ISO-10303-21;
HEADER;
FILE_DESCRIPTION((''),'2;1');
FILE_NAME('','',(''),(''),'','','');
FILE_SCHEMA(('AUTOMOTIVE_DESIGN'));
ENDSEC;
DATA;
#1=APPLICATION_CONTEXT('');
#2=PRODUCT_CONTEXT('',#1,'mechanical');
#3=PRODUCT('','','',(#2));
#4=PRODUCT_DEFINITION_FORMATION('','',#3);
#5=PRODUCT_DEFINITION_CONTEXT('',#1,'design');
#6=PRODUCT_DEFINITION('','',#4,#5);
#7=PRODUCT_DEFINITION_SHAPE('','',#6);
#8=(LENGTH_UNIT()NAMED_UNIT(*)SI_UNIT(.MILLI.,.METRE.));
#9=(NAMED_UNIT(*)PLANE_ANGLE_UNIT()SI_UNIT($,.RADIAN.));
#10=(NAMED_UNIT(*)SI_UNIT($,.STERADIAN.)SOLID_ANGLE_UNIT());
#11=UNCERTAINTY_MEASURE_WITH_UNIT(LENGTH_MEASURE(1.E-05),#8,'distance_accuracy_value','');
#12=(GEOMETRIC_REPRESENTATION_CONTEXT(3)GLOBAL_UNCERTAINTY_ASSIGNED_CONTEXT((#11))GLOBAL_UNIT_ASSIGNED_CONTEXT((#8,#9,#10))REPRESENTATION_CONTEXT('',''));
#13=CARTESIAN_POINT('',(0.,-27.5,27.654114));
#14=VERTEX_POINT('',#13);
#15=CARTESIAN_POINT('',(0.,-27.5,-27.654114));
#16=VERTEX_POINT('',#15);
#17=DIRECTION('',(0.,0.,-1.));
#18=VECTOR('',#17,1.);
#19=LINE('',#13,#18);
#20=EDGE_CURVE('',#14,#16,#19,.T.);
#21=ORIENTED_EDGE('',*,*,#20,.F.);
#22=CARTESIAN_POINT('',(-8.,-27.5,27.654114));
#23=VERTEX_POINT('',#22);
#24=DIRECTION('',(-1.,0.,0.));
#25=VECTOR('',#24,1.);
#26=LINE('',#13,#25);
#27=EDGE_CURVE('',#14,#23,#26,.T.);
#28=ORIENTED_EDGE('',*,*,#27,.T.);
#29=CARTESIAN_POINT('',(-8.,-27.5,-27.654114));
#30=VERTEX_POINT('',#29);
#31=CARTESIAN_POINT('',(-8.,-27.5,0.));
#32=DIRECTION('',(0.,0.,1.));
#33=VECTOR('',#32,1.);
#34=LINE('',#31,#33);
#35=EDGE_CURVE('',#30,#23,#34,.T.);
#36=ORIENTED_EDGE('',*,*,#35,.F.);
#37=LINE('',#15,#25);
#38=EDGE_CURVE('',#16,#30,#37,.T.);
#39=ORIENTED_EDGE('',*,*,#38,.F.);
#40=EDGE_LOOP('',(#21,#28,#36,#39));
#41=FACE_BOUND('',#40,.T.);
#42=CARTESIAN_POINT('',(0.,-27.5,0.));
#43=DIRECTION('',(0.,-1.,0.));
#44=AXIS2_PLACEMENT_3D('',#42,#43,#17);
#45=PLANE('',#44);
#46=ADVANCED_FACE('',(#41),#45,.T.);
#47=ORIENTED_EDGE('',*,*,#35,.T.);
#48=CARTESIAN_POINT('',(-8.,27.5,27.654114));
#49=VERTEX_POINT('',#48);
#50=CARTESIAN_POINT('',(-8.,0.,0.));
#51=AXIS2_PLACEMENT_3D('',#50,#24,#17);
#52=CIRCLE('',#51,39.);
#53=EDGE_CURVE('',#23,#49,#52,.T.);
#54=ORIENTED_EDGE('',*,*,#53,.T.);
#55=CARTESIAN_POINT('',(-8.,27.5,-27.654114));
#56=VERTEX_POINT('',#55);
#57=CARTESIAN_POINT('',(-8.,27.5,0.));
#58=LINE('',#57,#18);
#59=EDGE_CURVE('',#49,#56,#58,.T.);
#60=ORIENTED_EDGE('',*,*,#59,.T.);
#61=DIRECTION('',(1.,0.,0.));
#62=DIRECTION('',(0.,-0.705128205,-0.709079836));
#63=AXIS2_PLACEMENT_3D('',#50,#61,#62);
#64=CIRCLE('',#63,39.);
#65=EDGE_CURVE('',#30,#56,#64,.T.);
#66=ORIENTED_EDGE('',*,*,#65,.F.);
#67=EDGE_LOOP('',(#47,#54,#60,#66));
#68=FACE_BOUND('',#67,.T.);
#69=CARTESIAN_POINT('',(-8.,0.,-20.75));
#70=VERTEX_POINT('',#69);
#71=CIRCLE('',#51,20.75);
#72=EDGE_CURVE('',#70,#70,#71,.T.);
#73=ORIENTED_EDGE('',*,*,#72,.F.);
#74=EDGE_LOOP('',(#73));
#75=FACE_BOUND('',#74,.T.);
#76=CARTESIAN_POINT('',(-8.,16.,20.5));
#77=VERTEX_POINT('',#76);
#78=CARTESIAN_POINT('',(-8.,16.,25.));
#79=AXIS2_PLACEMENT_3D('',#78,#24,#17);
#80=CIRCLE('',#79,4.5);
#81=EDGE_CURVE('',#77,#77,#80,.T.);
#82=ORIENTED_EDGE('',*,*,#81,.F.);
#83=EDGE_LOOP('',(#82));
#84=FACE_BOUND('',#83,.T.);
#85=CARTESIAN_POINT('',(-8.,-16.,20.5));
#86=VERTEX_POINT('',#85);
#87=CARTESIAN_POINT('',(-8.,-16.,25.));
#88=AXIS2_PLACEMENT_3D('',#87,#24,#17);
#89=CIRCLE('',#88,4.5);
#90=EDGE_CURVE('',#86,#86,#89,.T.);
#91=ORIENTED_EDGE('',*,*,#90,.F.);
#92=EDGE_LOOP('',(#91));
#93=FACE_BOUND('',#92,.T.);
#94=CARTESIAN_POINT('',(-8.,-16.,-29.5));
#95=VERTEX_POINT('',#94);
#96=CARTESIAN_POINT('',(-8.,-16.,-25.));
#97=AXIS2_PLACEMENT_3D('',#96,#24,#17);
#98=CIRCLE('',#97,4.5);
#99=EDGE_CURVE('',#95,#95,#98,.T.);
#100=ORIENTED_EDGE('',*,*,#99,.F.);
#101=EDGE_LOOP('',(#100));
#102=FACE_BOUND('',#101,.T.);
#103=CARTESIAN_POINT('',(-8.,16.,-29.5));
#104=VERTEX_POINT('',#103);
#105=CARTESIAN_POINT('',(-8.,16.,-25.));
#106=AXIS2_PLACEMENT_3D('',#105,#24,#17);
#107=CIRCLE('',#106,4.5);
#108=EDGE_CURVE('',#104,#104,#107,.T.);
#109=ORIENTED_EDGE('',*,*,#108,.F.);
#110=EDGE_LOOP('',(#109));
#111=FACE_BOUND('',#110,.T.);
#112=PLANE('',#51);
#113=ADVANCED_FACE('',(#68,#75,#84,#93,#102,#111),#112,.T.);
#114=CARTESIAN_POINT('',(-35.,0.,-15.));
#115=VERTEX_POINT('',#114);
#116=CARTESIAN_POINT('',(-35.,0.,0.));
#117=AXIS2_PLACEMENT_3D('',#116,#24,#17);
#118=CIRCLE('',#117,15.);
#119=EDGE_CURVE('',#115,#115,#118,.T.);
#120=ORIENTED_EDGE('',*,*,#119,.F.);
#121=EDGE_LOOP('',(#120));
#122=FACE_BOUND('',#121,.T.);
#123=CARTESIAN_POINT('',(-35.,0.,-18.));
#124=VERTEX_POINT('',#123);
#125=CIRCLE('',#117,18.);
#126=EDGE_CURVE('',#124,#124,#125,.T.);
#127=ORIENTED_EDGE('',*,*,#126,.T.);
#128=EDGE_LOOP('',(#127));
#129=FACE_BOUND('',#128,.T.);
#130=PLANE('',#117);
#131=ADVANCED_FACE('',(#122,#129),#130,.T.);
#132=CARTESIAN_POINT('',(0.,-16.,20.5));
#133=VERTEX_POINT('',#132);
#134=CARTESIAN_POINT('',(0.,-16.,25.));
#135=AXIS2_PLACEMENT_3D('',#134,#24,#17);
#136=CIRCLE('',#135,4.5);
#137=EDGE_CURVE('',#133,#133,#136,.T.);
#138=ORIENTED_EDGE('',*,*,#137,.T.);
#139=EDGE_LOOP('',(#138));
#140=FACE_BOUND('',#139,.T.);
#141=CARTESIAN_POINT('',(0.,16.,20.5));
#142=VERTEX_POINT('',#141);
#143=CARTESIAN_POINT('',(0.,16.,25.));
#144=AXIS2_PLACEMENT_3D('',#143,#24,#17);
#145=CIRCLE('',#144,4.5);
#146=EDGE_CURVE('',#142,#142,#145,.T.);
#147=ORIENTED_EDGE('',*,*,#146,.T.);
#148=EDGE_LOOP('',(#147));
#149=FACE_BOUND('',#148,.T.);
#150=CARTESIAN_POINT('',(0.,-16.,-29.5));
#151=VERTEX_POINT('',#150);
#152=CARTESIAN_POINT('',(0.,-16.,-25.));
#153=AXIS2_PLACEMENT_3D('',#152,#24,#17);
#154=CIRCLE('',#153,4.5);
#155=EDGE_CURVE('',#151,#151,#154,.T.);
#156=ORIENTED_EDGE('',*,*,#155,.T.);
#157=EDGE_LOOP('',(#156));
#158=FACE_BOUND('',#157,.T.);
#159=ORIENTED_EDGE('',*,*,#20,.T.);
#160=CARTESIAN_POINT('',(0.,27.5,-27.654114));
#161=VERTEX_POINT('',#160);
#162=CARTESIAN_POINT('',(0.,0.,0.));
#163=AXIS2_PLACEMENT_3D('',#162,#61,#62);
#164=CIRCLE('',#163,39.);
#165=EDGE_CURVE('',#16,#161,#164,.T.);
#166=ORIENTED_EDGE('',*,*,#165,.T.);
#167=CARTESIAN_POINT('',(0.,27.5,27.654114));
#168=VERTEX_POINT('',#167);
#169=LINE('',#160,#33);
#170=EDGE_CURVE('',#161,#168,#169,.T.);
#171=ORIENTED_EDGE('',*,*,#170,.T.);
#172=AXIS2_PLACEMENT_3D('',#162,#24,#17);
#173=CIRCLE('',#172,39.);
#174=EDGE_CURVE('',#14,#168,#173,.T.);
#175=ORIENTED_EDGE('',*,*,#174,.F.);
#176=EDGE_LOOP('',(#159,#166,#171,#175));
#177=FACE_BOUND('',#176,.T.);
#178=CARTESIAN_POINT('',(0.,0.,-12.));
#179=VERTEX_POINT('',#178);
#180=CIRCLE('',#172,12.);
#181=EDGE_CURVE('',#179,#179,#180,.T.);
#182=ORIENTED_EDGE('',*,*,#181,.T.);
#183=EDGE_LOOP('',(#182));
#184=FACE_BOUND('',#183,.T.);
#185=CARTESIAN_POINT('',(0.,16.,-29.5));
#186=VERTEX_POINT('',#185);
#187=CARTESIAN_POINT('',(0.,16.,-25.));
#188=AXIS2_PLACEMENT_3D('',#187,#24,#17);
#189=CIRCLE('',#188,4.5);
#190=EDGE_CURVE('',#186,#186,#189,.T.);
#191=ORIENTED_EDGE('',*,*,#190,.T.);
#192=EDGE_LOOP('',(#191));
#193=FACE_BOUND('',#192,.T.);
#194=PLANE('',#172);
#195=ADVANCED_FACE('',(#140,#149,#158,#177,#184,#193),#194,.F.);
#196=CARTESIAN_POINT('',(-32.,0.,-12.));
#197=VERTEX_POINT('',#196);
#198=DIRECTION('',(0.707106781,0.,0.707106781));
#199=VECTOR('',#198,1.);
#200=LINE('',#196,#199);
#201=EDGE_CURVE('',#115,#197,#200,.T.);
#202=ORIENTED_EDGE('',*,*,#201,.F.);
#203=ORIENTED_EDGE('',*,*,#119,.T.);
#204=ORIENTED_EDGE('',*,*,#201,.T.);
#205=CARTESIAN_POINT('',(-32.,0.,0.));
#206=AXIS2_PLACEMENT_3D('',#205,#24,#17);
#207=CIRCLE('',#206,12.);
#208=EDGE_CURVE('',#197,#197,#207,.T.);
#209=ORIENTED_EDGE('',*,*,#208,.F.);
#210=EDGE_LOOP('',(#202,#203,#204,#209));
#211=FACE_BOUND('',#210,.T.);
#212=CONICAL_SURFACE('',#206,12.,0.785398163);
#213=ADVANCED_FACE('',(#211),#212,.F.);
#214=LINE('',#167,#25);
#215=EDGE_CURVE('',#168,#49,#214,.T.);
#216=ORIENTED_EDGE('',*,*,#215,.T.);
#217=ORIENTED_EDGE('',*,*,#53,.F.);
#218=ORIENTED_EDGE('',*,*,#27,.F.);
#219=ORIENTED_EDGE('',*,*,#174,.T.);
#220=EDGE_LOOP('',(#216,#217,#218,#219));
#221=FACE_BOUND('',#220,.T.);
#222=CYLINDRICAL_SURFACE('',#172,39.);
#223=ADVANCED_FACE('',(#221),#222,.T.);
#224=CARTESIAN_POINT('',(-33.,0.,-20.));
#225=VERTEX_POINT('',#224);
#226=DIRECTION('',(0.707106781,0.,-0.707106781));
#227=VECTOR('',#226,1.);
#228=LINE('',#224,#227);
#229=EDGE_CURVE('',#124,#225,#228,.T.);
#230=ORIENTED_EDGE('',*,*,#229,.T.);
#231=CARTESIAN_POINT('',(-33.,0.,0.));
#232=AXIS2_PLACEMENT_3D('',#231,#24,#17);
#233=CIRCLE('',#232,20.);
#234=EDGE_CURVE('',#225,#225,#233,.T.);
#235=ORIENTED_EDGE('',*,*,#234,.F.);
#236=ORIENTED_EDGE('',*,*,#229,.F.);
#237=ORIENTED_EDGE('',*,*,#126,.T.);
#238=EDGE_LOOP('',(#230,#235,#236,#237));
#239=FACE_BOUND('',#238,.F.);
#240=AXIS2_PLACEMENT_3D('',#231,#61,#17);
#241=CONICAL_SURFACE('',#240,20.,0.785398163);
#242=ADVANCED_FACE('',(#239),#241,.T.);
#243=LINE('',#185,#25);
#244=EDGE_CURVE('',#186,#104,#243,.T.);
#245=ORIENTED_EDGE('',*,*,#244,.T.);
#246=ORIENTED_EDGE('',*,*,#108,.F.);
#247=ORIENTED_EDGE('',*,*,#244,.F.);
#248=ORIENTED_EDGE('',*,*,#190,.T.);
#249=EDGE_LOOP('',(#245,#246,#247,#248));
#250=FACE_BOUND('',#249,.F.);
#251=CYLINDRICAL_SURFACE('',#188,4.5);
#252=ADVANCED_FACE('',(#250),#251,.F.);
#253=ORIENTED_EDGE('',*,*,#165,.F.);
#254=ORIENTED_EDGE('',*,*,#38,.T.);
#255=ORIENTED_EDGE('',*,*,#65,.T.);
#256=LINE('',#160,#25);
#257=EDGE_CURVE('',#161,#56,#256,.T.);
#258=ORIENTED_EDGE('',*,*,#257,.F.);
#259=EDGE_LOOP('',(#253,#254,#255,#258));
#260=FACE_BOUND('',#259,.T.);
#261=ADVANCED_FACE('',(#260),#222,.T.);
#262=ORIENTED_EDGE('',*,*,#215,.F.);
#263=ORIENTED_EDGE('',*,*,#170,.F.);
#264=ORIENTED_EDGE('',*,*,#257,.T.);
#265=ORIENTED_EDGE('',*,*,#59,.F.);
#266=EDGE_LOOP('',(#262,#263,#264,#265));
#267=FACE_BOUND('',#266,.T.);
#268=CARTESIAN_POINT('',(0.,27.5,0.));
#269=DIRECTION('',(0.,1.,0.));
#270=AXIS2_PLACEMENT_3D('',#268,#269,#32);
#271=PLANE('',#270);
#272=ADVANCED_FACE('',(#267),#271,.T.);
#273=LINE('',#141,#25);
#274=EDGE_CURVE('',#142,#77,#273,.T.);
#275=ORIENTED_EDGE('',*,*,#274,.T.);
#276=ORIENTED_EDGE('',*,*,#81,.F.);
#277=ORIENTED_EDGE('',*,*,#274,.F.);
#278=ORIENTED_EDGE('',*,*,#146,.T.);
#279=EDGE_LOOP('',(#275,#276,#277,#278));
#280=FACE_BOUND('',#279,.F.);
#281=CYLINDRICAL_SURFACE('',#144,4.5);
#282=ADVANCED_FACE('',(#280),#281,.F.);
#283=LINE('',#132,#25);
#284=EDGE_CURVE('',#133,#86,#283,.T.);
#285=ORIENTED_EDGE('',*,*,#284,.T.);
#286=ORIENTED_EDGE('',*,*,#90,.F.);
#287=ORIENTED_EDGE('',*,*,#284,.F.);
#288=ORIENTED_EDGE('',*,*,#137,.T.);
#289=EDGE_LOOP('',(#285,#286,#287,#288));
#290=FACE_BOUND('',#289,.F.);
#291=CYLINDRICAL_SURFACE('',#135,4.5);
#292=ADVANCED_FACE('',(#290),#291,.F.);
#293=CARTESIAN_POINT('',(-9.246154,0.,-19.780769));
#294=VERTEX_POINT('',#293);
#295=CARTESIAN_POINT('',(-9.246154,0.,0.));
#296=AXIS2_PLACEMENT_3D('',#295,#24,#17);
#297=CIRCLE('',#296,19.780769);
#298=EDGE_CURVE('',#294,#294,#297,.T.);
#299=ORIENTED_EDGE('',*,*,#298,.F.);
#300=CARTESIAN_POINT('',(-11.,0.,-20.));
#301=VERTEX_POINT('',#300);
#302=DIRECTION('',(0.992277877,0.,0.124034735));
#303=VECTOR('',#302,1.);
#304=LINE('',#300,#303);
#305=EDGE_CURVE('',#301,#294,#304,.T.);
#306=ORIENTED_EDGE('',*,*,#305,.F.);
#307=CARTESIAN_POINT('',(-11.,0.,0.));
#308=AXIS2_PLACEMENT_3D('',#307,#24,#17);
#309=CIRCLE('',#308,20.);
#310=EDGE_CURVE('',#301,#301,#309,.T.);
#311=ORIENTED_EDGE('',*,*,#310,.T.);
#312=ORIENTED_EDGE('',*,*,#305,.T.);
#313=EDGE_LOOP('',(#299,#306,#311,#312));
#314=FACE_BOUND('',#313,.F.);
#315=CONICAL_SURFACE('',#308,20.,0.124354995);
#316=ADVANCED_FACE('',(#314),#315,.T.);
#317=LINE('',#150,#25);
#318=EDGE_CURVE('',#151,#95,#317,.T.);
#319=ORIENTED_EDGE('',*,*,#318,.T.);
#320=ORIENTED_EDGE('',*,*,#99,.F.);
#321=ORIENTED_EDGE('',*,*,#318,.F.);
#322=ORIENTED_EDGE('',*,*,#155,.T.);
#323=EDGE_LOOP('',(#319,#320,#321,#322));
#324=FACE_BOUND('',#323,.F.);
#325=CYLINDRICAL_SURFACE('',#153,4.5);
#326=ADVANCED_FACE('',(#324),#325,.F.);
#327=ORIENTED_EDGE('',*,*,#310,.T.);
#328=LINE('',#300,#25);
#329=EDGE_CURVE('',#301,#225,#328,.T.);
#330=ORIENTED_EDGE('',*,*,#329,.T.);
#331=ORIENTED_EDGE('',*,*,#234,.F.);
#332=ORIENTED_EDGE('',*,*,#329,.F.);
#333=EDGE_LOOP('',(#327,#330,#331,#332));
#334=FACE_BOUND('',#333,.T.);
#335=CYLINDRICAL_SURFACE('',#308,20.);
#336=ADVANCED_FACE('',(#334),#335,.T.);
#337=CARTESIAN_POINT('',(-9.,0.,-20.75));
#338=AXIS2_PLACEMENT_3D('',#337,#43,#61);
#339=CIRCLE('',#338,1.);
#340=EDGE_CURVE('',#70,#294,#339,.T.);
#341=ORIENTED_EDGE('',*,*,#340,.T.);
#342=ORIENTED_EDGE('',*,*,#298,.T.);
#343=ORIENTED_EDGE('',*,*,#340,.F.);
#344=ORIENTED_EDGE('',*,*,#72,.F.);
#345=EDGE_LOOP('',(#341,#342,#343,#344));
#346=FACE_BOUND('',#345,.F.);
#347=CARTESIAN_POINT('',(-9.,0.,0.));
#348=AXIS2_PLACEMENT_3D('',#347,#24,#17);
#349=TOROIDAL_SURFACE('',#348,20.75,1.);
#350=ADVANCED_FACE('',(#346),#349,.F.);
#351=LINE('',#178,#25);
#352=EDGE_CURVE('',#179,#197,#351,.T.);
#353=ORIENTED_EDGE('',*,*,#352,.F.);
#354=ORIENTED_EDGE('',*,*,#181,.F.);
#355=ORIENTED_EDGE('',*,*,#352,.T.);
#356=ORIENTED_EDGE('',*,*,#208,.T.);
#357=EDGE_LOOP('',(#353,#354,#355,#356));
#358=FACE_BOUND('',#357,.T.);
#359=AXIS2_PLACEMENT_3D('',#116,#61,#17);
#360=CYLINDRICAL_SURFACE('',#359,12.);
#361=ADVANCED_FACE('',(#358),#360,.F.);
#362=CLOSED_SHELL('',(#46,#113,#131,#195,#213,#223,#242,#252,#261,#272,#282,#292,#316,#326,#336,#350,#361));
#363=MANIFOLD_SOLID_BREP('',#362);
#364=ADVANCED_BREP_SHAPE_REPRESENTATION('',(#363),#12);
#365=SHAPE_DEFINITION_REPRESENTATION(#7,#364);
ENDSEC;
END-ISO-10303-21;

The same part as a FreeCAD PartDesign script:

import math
import FreeCAD as App
import Part
import Sketcher
Q = App.Units.Quantity


def edges_at(feature, points):
    """Names of the edges that pass closest to the given points."""
    edges = feature.Shape.Edges
    near = lambda p: min(range(len(edges)), key=lambda i: edges[i].distToShape(Part.Vertex(*p))[0])
    return sorted({f"Edge{near(p) + 1}" for p in points})

doc = App.newDocument("Part")
params = doc.addObject("Spreadsheet::Sheet", "Params")
for row, (alias, value) in enumerate([
    ("sketch1_width", "8 mm"),
    ("sketch1_width2", "3 mm"),
    ("sketch1_width3", "24 mm"),
    ("revolution_angle", "360 deg"),
    ("sketch2_diameter", "9 mm"),
    ("hole_diameter", "9 mm"),
    ("chamfer_size", "2 mm"),
    ("chamfer2_size", "3 mm"),
    ("sketch3_radius", "39 mm"),
    ("sketch4_radius", "1 mm"),
    ("sketch4_width", "2 mm"),
    ("revolution2_angle", "360 deg"),
], start=1):
    params.set(f"A{row}", alias)
    params.set(f"B{row}", "=" + value)
    params.setAlias(f"B{row}", alias)

body = doc.addObject("PartDesign::Body", "Body")

sketch1 = doc.addObject("Sketcher::SketchObject", "Sketch")
body.addObject(sketch1)
sketch1.AttachmentSupport = (doc.XZ_Plane, [""])
sketch1.MapMode = "FlatFace"
sketch1.addGeometry([
    Part.LineSegment(App.Vector(0, -12, 0), App.Vector(0, -39, 0)),
    Part.LineSegment(App.Vector(0, -39, 0), App.Vector(-8, -39, 0)),
    Part.LineSegment(App.Vector(-8, -39, 0), App.Vector(-8, -19.75, 0)),
    Part.LineSegment(App.Vector(-8, -19.75, 0), App.Vector(-11, -19.75, 0)),
    Part.LineSegment(App.Vector(-11, -19.75, 0), App.Vector(-11, -20, 0)),
    Part.LineSegment(App.Vector(-11, -20, 0), App.Vector(-35, -20, 0)),
    Part.LineSegment(App.Vector(-35, -20, 0), App.Vector(-35, -12, 0)),
    Part.LineSegment(App.Vector(-35, -12, 0), App.Vector(0, -12, 0)),
], False)
sketch1.addConstraint([
    Sketcher.Constraint("Coincident", 0, 2, 1, 1),
    Sketcher.Constraint("Coincident", 1, 2, 2, 1),
    Sketcher.Constraint("Coincident", 2, 2, 3, 1),
    Sketcher.Constraint("Coincident", 3, 2, 4, 1),
    Sketcher.Constraint("Coincident", 4, 2, 5, 1),
    Sketcher.Constraint("Coincident", 5, 2, 6, 1),
    Sketcher.Constraint("Coincident", 6, 2, 7, 1),
    Sketcher.Constraint("Coincident", 7, 2, 0, 1),
    Sketcher.Constraint("Vertical", 0),
    Sketcher.Constraint("Horizontal", 1),
    Sketcher.Constraint("Vertical", 2),
    Sketcher.Constraint("Horizontal", 3),
    Sketcher.Constraint("Vertical", 4),
    Sketcher.Constraint("Horizontal", 5),
    Sketcher.Constraint("Vertical", 6),
    Sketcher.Constraint("Horizontal", 7),
    Sketcher.Constraint("PointOnObject", 0, 2, -2),
    Sketcher.Constraint("Equal", 1, 6),
    Sketcher.Constraint("DistanceX", 1, 2, 1, 1, Q("8 mm")),
    Sketcher.Constraint("DistanceX", 3, 2, 3, 1, Q("3 mm")),
    Sketcher.Constraint("DistanceY", 0, 2, -1, 1, Q("39 mm")),
    Sketcher.Constraint("DistanceY", 4, 2, -1, 1, Q("20 mm")),
    Sketcher.Constraint("DistanceX", 5, 2, 5, 1, Q("24 mm")),
    Sketcher.Constraint("DistanceY", 2, 2, -1, 1, Q("19.75 mm")),
])
sketch1.setExpression("Constraints[18]", "Params.sketch1_width")
sketch1.setExpression("Constraints[19]", "Params.sketch1_width2")
sketch1.setExpression("Constraints[22]", "Params.sketch1_width3")
revolution = doc.addObject("PartDesign::Revolution", "Revolution")
body.addObject(revolution)
revolution.Profile = sketch1
revolution.ReferenceAxis = (sketch1, ["H_Axis"])
revolution.setExpression("Angle", "Params.revolution_angle")

sketch2 = doc.addObject("Sketcher::SketchObject", "Sketch001")
body.addObject(sketch2)
sketch2.AttachmentSupport = (doc.YZ_Plane, [""])
sketch2.MapMode = "FlatFace"
sketch2.addGeometry([
    Part.Circle(App.Vector(-16, 25, 0), App.Vector(0, 0, 1), 4.5),
    Part.Circle(App.Vector(16, 25, 0), App.Vector(0, 0, 1), 4.5),
    Part.Circle(App.Vector(16, -25, 0), App.Vector(0, 0, 1), 4.5),
    Part.Circle(App.Vector(-16, -25, 0), App.Vector(0, 0, 1), 4.5),
], False)
sketch2.addConstraint([
    Sketcher.Constraint("Equal", 0, 1),
    Sketcher.Constraint("Equal", 1, 2),
    Sketcher.Constraint("Equal", 2, 3),
    Sketcher.Constraint("Symmetric", 0, 3, 2, 3, -1, 1),
    Sketcher.Constraint("Symmetric", 1, 3, 3, 3, -1, 1),
    Sketcher.Constraint("Symmetric", 0, 3, 1, 3, -2),
    Sketcher.Constraint("Diameter", 0, Q("9 mm")),
    Sketcher.Constraint("DistanceX", 0, 3, -1, 1, Q("16 mm")),
    Sketcher.Constraint("DistanceY", -1, 1, 0, 3, Q("25 mm")),
])
sketch2.setExpression("Constraints[6]", "Params.sketch2_diameter")
doc.recompute()
hole = doc.addObject("PartDesign::Hole", "Hole")
body.addObject(hole)
hole.Profile = sketch2
hole.ThreadType = "None"
hole.setExpression("Diameter", "Params.hole_diameter")
hole.DepthType = "ThroughAll"
doc.recompute()

chamfer = doc.addObject("PartDesign::Chamfer", "Chamfer")
body.addObject(chamfer)
chamfer.Base = (hole, edges_at(hole, [(-35, 0, 20)]))
chamfer.setExpression("Size", "Params.chamfer_size")
doc.recompute()

chamfer2 = doc.addObject("PartDesign::Chamfer", "Chamfer001")
body.addObject(chamfer2)
chamfer2.Base = (chamfer, edges_at(chamfer, [(-35, 0, 12)]))
chamfer2.setExpression("Size", "Params.chamfer2_size")

sketch3 = doc.addObject("Sketcher::SketchObject", "Sketch002")
body.addObject(sketch3)
sketch3.AttachmentSupport = (doc.YZ_Plane, [""])
sketch3.MapMode = "FlatFace"
sketch3.addGeometry([
    Part.LineSegment(App.Vector(-28, -28, 0), App.Vector(-28, 28, 0)),
    Part.ArcOfCircle(Part.Circle(App.Vector(0, 0, 0), App.Vector(0, 0, 1), 39), math.radians(135), math.radians(225)),
    Part.LineSegment(App.Vector(28, 28, 0), App.Vector(28, -28, 0)),
    Part.ArcOfCircle(Part.Circle(App.Vector(0, 0, 0), App.Vector(0, 0, 1), 39), math.radians(-45), math.radians(45)),
], False)
sketch3.addConstraint([
    Sketcher.Constraint("Coincident", 0, 1, 1, 2),
    Sketcher.Constraint("Coincident", 1, 1, 0, 2),
    Sketcher.Constraint("Coincident", 2, 1, 3, 2),
    Sketcher.Constraint("Coincident", 3, 1, 2, 2),
    Sketcher.Constraint("Vertical", 0),
    Sketcher.Constraint("Vertical", 2),
    Sketcher.Constraint("Coincident", 1, 3, -1, 1),
    Sketcher.Constraint("Coincident", 3, 3, -1, 1),
    Sketcher.Constraint("Equal", 1, 3),
    Sketcher.Constraint("Horizontal", 1, 1, 2, 1),
    Sketcher.Constraint("Radius", 1, Q("39 mm")),
    Sketcher.Constraint("DistanceX", 0, 1, -1, 1, Q("27.5 mm")),
])
sketch3.setExpression("Constraints[10]", "Params.sketch3_radius")
pocket1 = doc.addObject("PartDesign::Pocket", "Pocket")
body.addObject(pocket1)
pocket1.Profile = sketch3
pocket1.Type = "ThroughAll"

sketch4 = doc.addObject("Sketcher::SketchObject", "Sketch003")
body.addObject(sketch4)
sketch4.AttachmentSupport = (doc.XZ_Plane, [""])
sketch4.MapMode = "FlatFace"
sketch4.addGeometry([
    Part.LineSegment(App.Vector(-9, -19.75, 0), App.Vector(-8, -19.75, 0)),
    Part.LineSegment(App.Vector(-8, -19.75, 0), App.Vector(-8, -20.75, 0)),
    Part.ArcOfCircle(Part.Circle(App.Vector(-9, -20.75, 0), App.Vector(0, 0, 1), 1), math.radians(0), math.radians(90)),
    Part.LineSegment(App.Vector(-11, -19.75, 0), App.Vector(-9, -19.75, 0)),
    Part.ArcOfCircle(Part.Circle(App.Vector(-9, -20.75, 0), App.Vector(0, 0, 1), 1), math.radians(90), math.radians(104.25)),
    Part.LineSegment(App.Vector(-9.25, -19.78, 0), App.Vector(-11, -20, 0)),
    Part.LineSegment(App.Vector(-11, -20, 0), App.Vector(-11, -19.75, 0)),
], False)
sketch4.addConstraint([
    Sketcher.Constraint("Coincident", 0, 2, 1, 1),
    Sketcher.Constraint("Tangent", 1, 2, 2, 1),
    Sketcher.Constraint("Tangent", 2, 2, 0, 1),
    Sketcher.Constraint("Tangent", 3, 2, 4, 1),
    Sketcher.Constraint("Coincident", 4, 2, 5, 1),
    Sketcher.Constraint("Coincident", 5, 2, 6, 1),
    Sketcher.Constraint("Coincident", 6, 2, 3, 1),
    Sketcher.Constraint("Horizontal", 0),
    Sketcher.Constraint("Vertical", 1),
    Sketcher.Constraint("Horizontal", 3),
    Sketcher.Constraint("Vertical", 6),
    Sketcher.Constraint("Coincident", 4, 3, 2, 3),
    Sketcher.Constraint("Equal", 2, 4),
    Sketcher.Constraint("Radius", 2, Q("1 mm")),
    Sketcher.Constraint("DistanceX", 0, 2, -1, 1, Q("8 mm")),
    Sketcher.Constraint("DistanceY", 5, 2, -1, 1, Q("20 mm")),
    Sketcher.Constraint("DistanceX", 3, 1, 3, 2, Q("2 mm")),
    Sketcher.Constraint("DistanceY", 0, 2, -1, 1, Q("19.75 mm")),
    Sketcher.Constraint("Distance", 5, Q("1.7675 mm")),
])
sketch4.setExpression("Constraints[13]", "Params.sketch4_radius")
sketch4.setExpression("Constraints[16]", "Params.sketch4_width")
revolution2 = doc.addObject("PartDesign::Revolution", "Revolution001")
body.addObject(revolution2)
revolution2.Profile = sketch4
revolution2.ReferenceAxis = (sketch4, ["H_Axis"])
revolution2.setExpression("Angle", "Params.revolution2_angle")

doc.recompute()
